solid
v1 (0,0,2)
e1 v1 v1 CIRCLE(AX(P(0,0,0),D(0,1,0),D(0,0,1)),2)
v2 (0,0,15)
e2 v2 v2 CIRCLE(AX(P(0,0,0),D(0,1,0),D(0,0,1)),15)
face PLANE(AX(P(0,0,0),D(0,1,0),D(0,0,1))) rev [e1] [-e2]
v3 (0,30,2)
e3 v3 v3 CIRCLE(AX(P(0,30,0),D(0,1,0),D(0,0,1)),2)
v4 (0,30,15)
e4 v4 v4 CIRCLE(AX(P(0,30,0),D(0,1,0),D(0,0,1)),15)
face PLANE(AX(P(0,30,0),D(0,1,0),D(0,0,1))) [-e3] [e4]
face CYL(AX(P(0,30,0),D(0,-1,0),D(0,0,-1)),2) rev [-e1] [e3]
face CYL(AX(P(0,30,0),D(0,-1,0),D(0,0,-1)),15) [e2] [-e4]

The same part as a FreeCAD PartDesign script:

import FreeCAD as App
import Part
import Sketcher

doc = App.newDocument("Part")
params = doc.addObject("Spreadsheet::Sheet", "Params")
for row, (alias, value) in enumerate([
    ("sketch1_diameter", "30 mm"),
    ("pad1_length", "30 mm"),
    ("sketch2_diameter", "4 mm"),
    ("pocket1_length", "30 mm"),
], start=1):
    params.set(f"A{row}", alias)
    params.set(f"B{row}", "=" + value)
    params.setAlias(f"B{row}", alias)

body = doc.addObject("PartDesign::Body", "Body")

# Sketch on XZ plane
sketch1 = body.newObject("Sketcher::SketchObject", "Sketch")
sketch1.AttachmentSupport = (doc.getObject("XZ_Plane"), [""])
sketch1.MapMode = "FlatFace"
sketch1.addGeometry(Part.Circle(App.Vector(0, 0, 0), App.Vector(0, 0, 1), 15), False)
sketch1.addConstraint(Sketcher.Constraint("Coincident", 0, 3, -1, 1))
sketch1.addConstraint(Sketcher.Constraint("Diameter", 0, 30.0))
sketch1.setExpression("Constraints[1]", "Params.sketch1_diameter")
pad1 = body.newObject("PartDesign::Pad", "Pad")
pad1.Profile = sketch1
pad1.setExpression("Length", "Params.pad1_length")
pad1.Reversed = True

# Sketch on XZ plane
sketch2 = body.newObject("Sketcher::SketchObject", "Sketch001")
sketch2.AttachmentSupport = (doc.getObject("XZ_Plane"), [""])
sketch2.MapMode = "FlatFace"
sketch2.addGeometry(Part.Circle(App.Vector(0, 0, 0), App.Vector(0, 0, 1), 2), False)
sketch2.addConstraint(Sketcher.Constraint("Coincident", 0, 3, -1, 1))
sketch2.addConstraint(Sketcher.Constraint("Diameter", 0, 4.0))
sketch2.setExpression("Constraints[1]", "Params.sketch2_diameter")
pocket1 = body.newObject("PartDesign::Pocket", "Pocket")
pocket1.Profile = sketch2
pocket1.setExpression("Length", "Params.pocket1_length")

doc.recompute()
